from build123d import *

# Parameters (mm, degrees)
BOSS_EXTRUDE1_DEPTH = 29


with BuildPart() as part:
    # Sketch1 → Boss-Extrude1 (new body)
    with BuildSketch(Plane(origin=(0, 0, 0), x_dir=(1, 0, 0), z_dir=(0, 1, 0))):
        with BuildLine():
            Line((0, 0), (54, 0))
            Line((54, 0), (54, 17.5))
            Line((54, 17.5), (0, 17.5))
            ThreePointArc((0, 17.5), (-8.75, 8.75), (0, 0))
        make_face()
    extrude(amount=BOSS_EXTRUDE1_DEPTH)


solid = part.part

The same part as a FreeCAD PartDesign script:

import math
import FreeCAD as App
import Part
import Sketcher
from FreeCAD import Vector

doc = App.newDocument("Part")
body = doc.addObject("PartDesign::Body", "Body")

# Sketch on XZ plane
sketch1 = body.newObject("Sketcher::SketchObject", "Sketch")
sketch1.AttachmentSupport = (doc.getObject("XZ_Plane"), [""])
sketch1.MapMode = "FlatFace"
sketch1.addGeometry([
    Part.LineSegment(Vector(0, 0, 0), Vector(54, 0, 0)),
    Part.LineSegment(Vector(54, 0, 0), Vector(54, -17.5, 0)),
    Part.LineSegment(Vector(54, -17.5, 0), Vector(0, -17.5, 0)),
    Part.ArcOfCircle(Part.Circle(Vector(0, -8.75, 0), Vector(0, 0, 1), 8.75), math.radians(90), math.radians(270)),
], False)
sketch1.addConstraint([
    Sketcher.Constraint("Coincident", 0, 2, 1, 1),
    Sketcher.Constraint("Coincident", 1, 2, 2, 1),
    Sketcher.Constraint("Tangent", 2, 2, 3, 2),
    Sketcher.Constraint("Tangent", 3, 1, 0, 1),
    Sketcher.Constraint("Horizontal", 0),
    Sketcher.Constraint("Vertical", 1),
    Sketcher.Constraint("Horizontal", 2),
    Sketcher.Constraint("Coincident", 3, 1, -1, 1),
    Sketcher.Constraint("DistanceX", 0, 1, 0, 2, 54.0),
    Sketcher.Constraint("Radius", 3, 8.75),
])
pad1 = body.newObject("PartDesign::Pad", "Pad")
pad1.Profile = sketch1
pad1.Length = 29
pad1.Reversed = True

doc.recompute()
